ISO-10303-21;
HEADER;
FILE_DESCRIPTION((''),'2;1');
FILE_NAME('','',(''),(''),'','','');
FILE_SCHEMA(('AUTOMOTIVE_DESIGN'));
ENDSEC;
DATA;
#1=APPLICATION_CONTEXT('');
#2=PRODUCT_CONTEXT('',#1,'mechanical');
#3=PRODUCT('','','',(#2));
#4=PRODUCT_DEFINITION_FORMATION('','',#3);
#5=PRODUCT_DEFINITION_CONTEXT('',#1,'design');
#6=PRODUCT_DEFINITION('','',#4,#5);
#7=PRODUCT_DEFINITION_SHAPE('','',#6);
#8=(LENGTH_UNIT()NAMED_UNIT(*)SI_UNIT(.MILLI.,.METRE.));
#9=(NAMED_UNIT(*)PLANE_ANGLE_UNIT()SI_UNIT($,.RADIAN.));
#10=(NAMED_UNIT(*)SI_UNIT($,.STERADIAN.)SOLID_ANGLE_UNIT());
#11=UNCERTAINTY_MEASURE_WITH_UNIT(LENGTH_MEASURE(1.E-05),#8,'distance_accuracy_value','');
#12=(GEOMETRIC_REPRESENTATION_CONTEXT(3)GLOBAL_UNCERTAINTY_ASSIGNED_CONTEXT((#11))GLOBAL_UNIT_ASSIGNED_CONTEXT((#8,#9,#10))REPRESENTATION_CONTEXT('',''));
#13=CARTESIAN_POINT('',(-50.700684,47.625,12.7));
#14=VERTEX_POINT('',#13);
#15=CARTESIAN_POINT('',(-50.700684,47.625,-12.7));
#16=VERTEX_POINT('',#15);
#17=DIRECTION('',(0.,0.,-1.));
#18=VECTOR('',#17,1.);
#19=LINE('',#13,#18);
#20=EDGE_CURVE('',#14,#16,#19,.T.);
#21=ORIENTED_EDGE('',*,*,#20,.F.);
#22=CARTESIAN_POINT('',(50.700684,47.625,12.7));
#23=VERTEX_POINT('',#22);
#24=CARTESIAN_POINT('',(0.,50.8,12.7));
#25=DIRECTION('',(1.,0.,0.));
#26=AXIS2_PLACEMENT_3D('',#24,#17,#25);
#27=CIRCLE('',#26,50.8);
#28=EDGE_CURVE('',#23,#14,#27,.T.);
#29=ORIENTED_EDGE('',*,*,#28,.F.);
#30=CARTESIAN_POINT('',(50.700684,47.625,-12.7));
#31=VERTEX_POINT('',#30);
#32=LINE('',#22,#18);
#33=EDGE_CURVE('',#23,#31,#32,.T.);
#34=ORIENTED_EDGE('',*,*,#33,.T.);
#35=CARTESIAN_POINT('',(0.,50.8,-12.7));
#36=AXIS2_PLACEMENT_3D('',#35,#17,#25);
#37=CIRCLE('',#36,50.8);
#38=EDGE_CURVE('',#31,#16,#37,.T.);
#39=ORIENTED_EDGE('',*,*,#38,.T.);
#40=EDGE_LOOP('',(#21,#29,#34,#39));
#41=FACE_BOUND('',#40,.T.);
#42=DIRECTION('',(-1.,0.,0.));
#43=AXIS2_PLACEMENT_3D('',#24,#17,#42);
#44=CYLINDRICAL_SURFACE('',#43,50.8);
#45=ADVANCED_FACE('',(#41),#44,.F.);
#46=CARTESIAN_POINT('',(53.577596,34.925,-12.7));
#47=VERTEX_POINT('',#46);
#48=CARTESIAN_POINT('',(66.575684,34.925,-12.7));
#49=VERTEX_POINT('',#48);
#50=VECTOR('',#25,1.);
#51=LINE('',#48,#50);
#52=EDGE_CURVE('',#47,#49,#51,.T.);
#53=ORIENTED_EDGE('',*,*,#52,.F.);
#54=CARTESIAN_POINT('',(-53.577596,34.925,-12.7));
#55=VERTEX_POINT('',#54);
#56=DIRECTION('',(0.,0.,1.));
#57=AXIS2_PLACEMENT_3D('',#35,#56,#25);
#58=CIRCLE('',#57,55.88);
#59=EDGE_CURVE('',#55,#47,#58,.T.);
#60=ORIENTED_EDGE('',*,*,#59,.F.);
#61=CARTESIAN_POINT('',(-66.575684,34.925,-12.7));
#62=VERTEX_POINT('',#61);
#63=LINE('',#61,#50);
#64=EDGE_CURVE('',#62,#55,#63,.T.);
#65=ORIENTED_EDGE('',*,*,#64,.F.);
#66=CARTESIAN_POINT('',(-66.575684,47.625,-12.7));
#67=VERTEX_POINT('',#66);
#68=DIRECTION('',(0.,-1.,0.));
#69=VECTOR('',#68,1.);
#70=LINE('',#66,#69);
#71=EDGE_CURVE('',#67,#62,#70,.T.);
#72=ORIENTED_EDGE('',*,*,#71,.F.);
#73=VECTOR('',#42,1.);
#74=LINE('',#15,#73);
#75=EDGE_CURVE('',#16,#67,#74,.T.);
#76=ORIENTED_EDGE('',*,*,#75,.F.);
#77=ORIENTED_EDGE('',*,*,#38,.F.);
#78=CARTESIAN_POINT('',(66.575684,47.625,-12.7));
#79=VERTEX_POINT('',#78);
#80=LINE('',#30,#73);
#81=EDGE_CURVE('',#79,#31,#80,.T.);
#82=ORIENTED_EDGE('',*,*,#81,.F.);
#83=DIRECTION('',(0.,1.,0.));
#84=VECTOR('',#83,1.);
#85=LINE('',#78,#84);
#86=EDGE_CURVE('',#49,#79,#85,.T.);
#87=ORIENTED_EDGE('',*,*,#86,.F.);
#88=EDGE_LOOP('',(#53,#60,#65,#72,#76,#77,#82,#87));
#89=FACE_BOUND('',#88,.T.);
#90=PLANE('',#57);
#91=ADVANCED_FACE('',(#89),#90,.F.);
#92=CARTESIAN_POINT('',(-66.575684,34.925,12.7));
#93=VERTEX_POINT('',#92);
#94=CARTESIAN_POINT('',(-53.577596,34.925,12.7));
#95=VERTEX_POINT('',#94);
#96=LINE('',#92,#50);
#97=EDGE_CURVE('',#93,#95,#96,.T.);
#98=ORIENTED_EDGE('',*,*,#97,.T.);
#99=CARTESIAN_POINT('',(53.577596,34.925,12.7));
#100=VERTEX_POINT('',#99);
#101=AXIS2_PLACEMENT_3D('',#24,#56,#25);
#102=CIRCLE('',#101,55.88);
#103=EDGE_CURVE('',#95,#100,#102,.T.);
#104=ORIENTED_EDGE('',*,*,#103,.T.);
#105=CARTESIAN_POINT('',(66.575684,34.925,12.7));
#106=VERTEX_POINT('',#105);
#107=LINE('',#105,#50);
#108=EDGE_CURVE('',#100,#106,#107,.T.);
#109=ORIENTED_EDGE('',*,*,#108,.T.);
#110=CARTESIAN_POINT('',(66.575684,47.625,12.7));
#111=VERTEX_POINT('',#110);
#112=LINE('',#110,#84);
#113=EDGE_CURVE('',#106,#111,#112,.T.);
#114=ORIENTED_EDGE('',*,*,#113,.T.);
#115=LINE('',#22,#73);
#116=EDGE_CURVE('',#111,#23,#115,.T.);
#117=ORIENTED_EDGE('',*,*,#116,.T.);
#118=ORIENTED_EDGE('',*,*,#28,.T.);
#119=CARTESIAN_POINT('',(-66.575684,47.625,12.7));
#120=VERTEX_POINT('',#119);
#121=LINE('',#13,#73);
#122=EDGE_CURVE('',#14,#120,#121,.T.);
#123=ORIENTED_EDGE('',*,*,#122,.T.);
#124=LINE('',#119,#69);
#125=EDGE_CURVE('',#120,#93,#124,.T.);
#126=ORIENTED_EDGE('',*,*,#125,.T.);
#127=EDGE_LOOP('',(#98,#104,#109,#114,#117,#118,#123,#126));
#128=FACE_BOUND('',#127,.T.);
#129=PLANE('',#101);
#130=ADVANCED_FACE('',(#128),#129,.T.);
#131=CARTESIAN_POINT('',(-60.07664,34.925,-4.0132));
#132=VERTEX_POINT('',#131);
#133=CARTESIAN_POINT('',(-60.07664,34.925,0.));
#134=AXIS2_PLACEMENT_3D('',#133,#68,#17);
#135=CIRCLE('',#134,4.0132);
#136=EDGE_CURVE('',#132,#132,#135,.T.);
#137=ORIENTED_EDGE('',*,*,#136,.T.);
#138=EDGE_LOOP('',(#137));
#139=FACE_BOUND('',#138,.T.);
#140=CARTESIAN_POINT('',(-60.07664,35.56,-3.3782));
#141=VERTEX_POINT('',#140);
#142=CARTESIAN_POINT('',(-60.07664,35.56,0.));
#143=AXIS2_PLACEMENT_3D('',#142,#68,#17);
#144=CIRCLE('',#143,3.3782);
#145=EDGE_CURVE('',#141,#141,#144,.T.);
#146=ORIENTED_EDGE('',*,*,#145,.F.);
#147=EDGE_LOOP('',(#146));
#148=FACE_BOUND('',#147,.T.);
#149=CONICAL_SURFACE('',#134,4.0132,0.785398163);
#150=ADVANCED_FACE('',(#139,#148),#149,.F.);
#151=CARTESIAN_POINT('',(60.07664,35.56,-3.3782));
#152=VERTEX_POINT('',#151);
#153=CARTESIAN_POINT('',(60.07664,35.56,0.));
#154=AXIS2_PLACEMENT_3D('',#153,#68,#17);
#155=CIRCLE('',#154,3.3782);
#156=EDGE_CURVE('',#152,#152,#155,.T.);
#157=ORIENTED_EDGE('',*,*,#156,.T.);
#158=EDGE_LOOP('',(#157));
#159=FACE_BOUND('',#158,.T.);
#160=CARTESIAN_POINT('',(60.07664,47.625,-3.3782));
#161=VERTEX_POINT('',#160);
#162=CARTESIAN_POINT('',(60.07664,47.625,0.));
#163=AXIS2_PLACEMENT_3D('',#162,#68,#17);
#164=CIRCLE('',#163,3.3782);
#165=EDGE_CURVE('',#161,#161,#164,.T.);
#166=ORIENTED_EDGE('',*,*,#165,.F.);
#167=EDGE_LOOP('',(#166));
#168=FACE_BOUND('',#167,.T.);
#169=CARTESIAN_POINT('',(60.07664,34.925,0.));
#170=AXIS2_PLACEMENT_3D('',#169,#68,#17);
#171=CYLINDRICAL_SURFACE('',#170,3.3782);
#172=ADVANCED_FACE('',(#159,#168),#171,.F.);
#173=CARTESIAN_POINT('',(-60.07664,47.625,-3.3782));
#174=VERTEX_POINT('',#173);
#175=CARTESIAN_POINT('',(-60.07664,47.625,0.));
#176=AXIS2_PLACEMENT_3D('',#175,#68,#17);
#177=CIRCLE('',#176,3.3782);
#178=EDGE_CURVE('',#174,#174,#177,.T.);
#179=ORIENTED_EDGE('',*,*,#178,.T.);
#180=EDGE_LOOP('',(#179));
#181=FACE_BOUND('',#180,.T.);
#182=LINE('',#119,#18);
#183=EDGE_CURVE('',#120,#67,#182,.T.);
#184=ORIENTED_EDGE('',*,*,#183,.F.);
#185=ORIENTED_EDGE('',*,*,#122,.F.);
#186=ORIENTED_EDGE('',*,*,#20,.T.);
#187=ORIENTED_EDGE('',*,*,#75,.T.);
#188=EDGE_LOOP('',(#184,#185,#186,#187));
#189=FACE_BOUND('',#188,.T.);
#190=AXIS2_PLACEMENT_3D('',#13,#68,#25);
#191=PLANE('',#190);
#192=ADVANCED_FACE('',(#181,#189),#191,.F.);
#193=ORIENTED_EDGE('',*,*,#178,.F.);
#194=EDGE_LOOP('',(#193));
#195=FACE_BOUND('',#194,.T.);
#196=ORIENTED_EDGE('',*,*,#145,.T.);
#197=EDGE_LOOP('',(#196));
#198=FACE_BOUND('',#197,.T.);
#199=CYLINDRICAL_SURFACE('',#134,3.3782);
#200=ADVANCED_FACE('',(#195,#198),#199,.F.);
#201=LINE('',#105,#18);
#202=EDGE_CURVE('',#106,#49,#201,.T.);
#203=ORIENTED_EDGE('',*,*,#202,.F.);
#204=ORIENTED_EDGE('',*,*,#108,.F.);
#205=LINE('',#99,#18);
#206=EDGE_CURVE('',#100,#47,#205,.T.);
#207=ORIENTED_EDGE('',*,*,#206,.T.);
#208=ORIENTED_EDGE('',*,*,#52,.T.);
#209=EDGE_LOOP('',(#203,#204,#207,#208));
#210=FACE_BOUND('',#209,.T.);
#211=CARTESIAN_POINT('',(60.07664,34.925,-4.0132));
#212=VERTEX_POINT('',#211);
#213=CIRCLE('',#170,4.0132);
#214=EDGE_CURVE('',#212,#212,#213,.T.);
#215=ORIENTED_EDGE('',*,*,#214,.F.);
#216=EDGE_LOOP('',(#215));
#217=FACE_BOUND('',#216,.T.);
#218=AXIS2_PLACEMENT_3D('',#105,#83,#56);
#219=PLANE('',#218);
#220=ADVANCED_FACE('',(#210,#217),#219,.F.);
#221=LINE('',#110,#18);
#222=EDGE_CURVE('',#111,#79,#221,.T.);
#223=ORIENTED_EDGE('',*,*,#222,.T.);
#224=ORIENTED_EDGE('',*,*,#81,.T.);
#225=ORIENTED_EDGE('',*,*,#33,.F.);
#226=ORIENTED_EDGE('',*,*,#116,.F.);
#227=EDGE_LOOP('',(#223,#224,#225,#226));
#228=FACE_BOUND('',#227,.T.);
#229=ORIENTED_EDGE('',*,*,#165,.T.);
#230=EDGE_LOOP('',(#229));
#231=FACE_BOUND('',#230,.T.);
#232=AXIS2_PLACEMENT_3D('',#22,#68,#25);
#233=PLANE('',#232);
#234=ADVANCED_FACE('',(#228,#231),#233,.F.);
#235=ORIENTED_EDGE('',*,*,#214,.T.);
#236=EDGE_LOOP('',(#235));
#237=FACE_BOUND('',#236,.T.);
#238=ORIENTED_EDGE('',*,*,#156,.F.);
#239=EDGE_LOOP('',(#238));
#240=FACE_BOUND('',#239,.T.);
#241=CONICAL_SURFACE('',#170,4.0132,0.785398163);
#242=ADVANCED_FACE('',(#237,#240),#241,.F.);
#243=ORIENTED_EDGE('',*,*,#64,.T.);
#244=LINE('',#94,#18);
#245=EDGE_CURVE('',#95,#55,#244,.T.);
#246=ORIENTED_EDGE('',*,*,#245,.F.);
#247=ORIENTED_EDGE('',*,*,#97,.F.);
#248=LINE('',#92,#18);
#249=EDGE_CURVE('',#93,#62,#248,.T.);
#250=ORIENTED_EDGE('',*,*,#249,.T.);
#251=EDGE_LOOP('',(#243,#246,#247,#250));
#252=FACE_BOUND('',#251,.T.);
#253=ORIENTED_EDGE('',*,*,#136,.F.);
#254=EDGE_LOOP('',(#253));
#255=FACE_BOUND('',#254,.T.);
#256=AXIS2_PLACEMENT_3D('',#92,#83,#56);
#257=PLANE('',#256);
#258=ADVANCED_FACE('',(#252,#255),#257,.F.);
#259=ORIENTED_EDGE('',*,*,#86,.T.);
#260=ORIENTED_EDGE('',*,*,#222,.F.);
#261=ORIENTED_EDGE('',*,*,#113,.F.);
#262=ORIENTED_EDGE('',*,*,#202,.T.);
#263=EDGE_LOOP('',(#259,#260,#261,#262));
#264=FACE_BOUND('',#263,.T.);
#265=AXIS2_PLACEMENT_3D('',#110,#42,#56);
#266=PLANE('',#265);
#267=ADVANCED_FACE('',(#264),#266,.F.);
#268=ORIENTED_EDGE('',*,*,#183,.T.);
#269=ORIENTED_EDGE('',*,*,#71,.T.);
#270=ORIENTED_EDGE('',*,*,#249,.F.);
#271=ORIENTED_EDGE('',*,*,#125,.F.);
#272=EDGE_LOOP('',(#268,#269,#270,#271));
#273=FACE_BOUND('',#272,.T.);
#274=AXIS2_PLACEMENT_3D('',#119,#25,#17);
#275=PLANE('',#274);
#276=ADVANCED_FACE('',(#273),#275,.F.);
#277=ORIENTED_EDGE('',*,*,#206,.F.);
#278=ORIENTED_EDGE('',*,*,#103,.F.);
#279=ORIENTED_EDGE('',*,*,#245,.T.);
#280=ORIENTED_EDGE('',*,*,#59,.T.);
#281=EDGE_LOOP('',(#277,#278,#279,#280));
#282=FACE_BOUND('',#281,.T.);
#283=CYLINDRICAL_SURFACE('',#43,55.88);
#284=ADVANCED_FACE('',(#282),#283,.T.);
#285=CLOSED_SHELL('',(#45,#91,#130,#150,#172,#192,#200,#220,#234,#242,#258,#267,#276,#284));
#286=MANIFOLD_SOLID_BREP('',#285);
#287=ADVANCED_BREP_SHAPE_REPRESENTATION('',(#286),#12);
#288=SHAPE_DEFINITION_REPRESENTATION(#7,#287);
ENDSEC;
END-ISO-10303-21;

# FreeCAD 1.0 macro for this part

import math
import FreeCAD as App
import Part
import Sketcher

V = App.Vector
Q = App.Units.Quantity

doc = App.newDocument("Part")
body = doc.addObject("PartDesign::Body", "Body")

sketch1 = body.newObject("Sketcher::SketchObject", "Sketch")
sketch1.AttachmentSupport = (doc.getObject("XY_Plane"), [""])
sketch1.MapMode = "FlatFace"
sketch1.addGeometry(Part.LineSegment(V(-50.700684, 47.625, 0), V(-66.575684, 47.625, 0)), False)
sketch1.addGeometry(Part.LineSegment(V(-66.575684, 47.625, 0), V(-66.575684, 34.925, 0)), False)
sketch1.addGeometry(Part.LineSegment(V(-66.575684, 34.925, 0), V(-53.577596, 34.925, 0)), False)
sketch1.addGeometry(Part.ArcOfCircle(Part.Circle(V(0, 50.8, 0), V(0, 0, 1), 55.88), math.radians(-163.495484), math.radians(-16.504516)), False)
sketch1.addGeometry(Part.LineSegment(V(53.577596, 34.925, 0), V(66.575684, 34.925, 0)), False)
sketch1.addGeometry(Part.LineSegment(V(66.575684, 34.925, 0), V(66.575684, 47.625, 0)), False)
sketch1.addGeometry(Part.LineSegment(V(66.575684, 47.625, 0), V(50.700684, 47.625, 0)), False)
sketch1.addGeometry(Part.ArcOfCircle(Part.Circle(V(0, 50.8, 0), V(0, 0, 1), 50.8), math.radians(-176.416678), math.radians(-3.583322)), False)
sketch1.addConstraint(Sketcher.Constraint("Coincident", 0, 2, 1, 1))
sketch1.addConstraint(Sketcher.Constraint("Coincident", 1, 2, 2, 1))
sketch1.addConstraint(Sketcher.Constraint("Coincident", 2, 2, 3, 1))
sketch1.addConstraint(Sketcher.Constraint("Coincident", 3, 2, 4, 1))
sketch1.addConstraint(Sketcher.Constraint("Coincident", 4, 2, 5, 1))
sketch1.addConstraint(Sketcher.Constraint("Coincident", 5, 2, 6, 1))
sketch1.addConstraint(Sketcher.Constraint("Coincident", 6, 2, 7, 2))
sketch1.addConstraint(Sketcher.Constraint("Coincident", 7, 1, 0, 1))
sketch1.addConstraint(Sketcher.Constraint("Horizontal", 0))
sketch1.addConstraint(Sketcher.Constraint("Vertical", 1))
sketch1.addConstraint(Sketcher.Constraint("Horizontal", 2))
sketch1.addConstraint(Sketcher.Constraint("Horizontal", 4))
sketch1.addConstraint(Sketcher.Constraint("Vertical", 5))
sketch1.addConstraint(Sketcher.Constraint("Horizontal", 6))
sketch1.addConstraint(Sketcher.Constraint("Coincident", 7, 3, 3, 3))
sketch1.addConstraint(Sketcher.Constraint("Symmetric", 2, 2, 3, 2, -2))
sketch1.addConstraint(Sketcher.Constraint("Symmetric", 0, 2, 5, 2, -2))
sketch1.addConstraint(Sketcher.Constraint("Radius", 7, Q("2 in")))
sketch1.addConstraint(Sketcher.Constraint("Radius", 3, Q("2.2 in")))
sketch1.addConstraint(Sketcher.Constraint("DistanceY", 1, 2, 1, 1, Q("0.5 in")))
sketch1.addConstraint(Sketcher.Constraint("DistanceY", -1, 1, 3, 3, Q("2 in")))
sketch1.addConstraint(Sketcher.Constraint("DistanceX", 0, 2, 0, 1, Q("0.625 in")))
sketch1.addConstraint(Sketcher.Constraint("DistanceY", -1, 1, 0, 2, Q("1.875 in")))
pad1 = body.newObject("PartDesign::Pad", "Pad")
pad1.Profile = sketch1
pad1.Length = Q("1 in")
pad1.Midplane = True

sketch2 = body.newObject("Sketcher::SketchObject", "Sketch001")
sketch2.AttachmentSupport = (doc.getObject("XZ_Plane"), [""])
sketch2.MapMode = "FlatFace"
sketch2.AttachmentOffset = App.Placement(V(0, 0, -1.375 * 25.4), App.Rotation())
sketch2.addGeometry(Part.Circle(V(-60.07664, 0, 0), V(0, 0, 1), 3.3782), False)
sketch2.addGeometry(Part.Circle(V(60.07664, 0, 0), V(0, 0, 1), 3.3782), False)
sketch2.addConstraint(Sketcher.Constraint("Equal", 0, 1))
sketch2.addConstraint(Sketcher.Constraint("Symmetric", 0, 3, 1, 3, -1, 1))
sketch2.addConstraint(Sketcher.Constraint("PointOnObject", 0, 3, -1))
sketch2.addConstraint(Sketcher.Constraint("Diameter", 0, Q("0.266 in")))
sketch2.addConstraint(Sketcher.Constraint("DistanceX", 0, 3, -1, 1, 60.07664))
doc.recompute()
hole = body.newObject("PartDesign::Hole", "Hole")
hole.Profile = sketch2
hole.ThreadType = "None"
hole.Diameter = Q("0.266 in")
hole.DepthType = "ThroughAll"
hole.HoleCutType = "Countersink"
hole.HoleCutDiameter = Q("0.316 in")
hole.HoleCutCountersinkAngle = 90

doc.recompute()
